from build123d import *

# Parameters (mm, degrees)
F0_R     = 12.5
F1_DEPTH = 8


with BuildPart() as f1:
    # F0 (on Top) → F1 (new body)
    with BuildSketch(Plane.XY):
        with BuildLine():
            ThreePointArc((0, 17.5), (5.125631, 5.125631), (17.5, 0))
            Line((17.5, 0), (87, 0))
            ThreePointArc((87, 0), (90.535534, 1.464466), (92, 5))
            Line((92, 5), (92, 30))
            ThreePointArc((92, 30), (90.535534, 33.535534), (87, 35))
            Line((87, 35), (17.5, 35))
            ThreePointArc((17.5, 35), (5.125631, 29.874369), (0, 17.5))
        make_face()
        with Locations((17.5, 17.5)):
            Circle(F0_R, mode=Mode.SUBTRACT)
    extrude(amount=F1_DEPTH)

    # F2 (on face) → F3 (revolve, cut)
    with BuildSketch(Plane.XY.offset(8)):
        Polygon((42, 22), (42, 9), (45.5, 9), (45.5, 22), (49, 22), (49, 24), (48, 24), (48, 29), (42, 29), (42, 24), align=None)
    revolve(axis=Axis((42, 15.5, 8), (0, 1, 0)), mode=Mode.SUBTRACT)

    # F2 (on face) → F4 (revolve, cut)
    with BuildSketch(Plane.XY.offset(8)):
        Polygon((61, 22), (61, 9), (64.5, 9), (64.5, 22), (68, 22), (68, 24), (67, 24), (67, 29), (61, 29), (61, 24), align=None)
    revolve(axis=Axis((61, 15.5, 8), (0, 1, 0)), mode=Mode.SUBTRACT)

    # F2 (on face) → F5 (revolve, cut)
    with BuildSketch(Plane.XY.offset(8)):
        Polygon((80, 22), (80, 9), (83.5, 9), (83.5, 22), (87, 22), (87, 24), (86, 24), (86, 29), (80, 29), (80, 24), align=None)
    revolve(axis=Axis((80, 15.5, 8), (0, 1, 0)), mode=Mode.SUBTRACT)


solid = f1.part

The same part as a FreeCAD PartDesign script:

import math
import FreeCAD as App
import Part
import Sketcher


def add_polygon(sketch, points):
    """Adds a closed chain of lines whose ends are joined by coincident constraints."""
    first, n = sketch.GeometryCount, len(points)
    for a, b in zip(points, points[1:] + points[:1]):
        sketch.addGeometry(Part.LineSegment(App.Vector(*a, 0), App.Vector(*b, 0)), False)
    for i in range(n):
        sketch.addConstraint(Sketcher.Constraint("Coincident", first + i, 2, first + (i + 1) % n, 1))

doc = App.newDocument("Part")
body = doc.addObject("PartDesign::Body", "Body")

# Sketch on XY plane
sketch1 = body.newObject("Sketcher::SketchObject", "Sketch")
sketch1.AttachmentSupport = (doc.getObject("XY_Plane"), [""])
sketch1.MapMode = "FlatFace"
sketch1.addGeometry([
    Part.ArcOfCircle(Part.Circle(App.Vector(17.5, 17.5, 0), App.Vector(0, 0, 1), 17.5), math.radians(180), math.radians(270)),  # 0
    Part.LineSegment(App.Vector(17.5, 0, 0), App.Vector(87, 0, 0)),  # 1
    Part.ArcOfCircle(Part.Circle(App.Vector(87, 5, 0), App.Vector(0, 0, 1), 5), math.radians(-90), math.radians(0)),  # 2
    Part.LineSegment(App.Vector(92, 5, 0), App.Vector(92, 30, 0)),  # 3
    Part.ArcOfCircle(Part.Circle(App.Vector(87, 30, 0), App.Vector(0, 0, 1), 5), math.radians(0), math.radians(90)),  # 4
    Part.LineSegment(App.Vector(87, 35, 0), App.Vector(17.5, 35, 0)),  # 5
    Part.ArcOfCircle(Part.Circle(App.Vector(17.5, 17.5, 0), App.Vector(0, 0, 1), 17.5), math.radians(90), math.radians(180)),  # 6
    Part.Circle(App.Vector(17.5, 17.5, 0), App.Vector(0, 0, 1), 12.5),  # 7
], False)
sketch1.addConstraint([
    Sketcher.Constraint("Tangent", 0, 2, 1, 1),
    Sketcher.Constraint("Tangent", 1, 2, 2, 1),
    Sketcher.Constraint("Tangent", 2, 2, 3, 1),
    Sketcher.Constraint("Tangent", 3, 2, 4, 1),
    Sketcher.Constraint("Tangent", 4, 2, 5, 1),
    Sketcher.Constraint("Tangent", 5, 2, 6, 1),
    Sketcher.Constraint("Tangent", 6, 2, 0, 1),
    Sketcher.Constraint("Horizontal", 1),
    Sketcher.Constraint("Vertical", 3),
    Sketcher.Constraint("Horizontal", 5),
    Sketcher.Constraint("Coincident", 7, 3, 0, 3),
    Sketcher.Constraint("Equal", 2, 4),
    Sketcher.Constraint("Equal", 0, 6),
    Sketcher.Constraint("PointOnObject", 0, 2, -1),
    Sketcher.Constraint("PointOnObject", 6, 2, -2),
    Sketcher.Constraint("Horizontal", 7, 3, 6, 2),
    Sketcher.Constraint("Diameter", 7, 25.0),
    Sketcher.Constraint("Radius", 2, 5.0),
    Sketcher.Constraint("Radius", 0, 17.499999),
    Sketcher.Constraint("DistanceX", 1, 1, 1, 2, 69.5),
])
pad1 = body.newObject("PartDesign::Pad", "Pad")
pad1.Profile = sketch1
pad1.Length = 8

# Sketch on XY plane
sketch2 = body.newObject("Sketcher::SketchObject", "Sketch001")
sketch2.AttachmentSupport = (doc.getObject("XY_Plane"), [""])
sketch2.MapMode = "FlatFace"
sketch2.AttachmentOffset = App.Placement(App.Vector(0, 0, 8), App.Rotation())
add_polygon(sketch2, [(42, 9), (45.5, 9), (45.5, 22), (49, 22), (49, 24), (48, 24), (48, 29), (42, 29)])  # lines 0-7
sketch2.addGeometry(Part.LineSegment(App.Vector(42, 9, 0), App.Vector(42, 29, 0)), True)  # axis
sketch2.addConstraint([
    Sketcher.Constraint("Horizontal", 0),
    Sketcher.Constraint("Vertical", 1),
    Sketcher.Constraint("Horizontal", 2),
    Sketcher.Constraint("Vertical", 3),
    Sketcher.Constraint("Horizontal", 4),
    Sketcher.Constraint("Vertical", 5),
    Sketcher.Constraint("Horizontal", 6),
    Sketcher.Constraint("Vertical", 7),
    Sketcher.Constraint("Vertical", 8),
    Sketcher.Constraint("Coincident", 8, 1, 7, 2),
    Sketcher.Constraint("Horizontal", 5, 2, 8, 2),
    Sketcher.Constraint("Equal", 0, 2),
    Sketcher.Constraint("DistanceX", 4, 2, 4, 1, 1.0),
    Sketcher.Constraint("DistanceX", 6, 2, 6, 1, 6.0),
    Sketcher.Constraint("DistanceY", 1, 1, 1, 2, 13.0),
    Sketcher.Constraint("DistanceY", 3, 1, 3, 2, 2.0),
    Sketcher.Constraint("DistanceY", 5, 1, 5, 2, 5.0),
    Sketcher.Constraint("DistanceY", -1, 1, 0, 2, 9.0),
    Sketcher.Constraint("DistanceX", -1, 1, 2, 2, 49.0),
])
groove = body.newObject("PartDesign::Groove", "Groove")
groove.Profile = sketch2
groove.ReferenceAxis = (sketch2, ["Axis0"])
groove.Angle = 360

# Sketch on XY plane
sketch3 = body.newObject("Sketcher::SketchObject", "Sketch002")
sketch3.AttachmentSupport = (doc.getObject("XY_Plane"), [""])
sketch3.MapMode = "FlatFace"
sketch3.AttachmentOffset = App.Placement(App.Vector(0, 0, 8), App.Rotation())
add_polygon(sketch3, [(61, 9), (64.5, 9), (64.5, 22), (68, 22), (68, 24), (67, 24), (67, 29), (61, 29)])  # lines 0-7
sketch3.addGeometry(Part.LineSegment(App.Vector(61, 9, 0), App.Vector(61, 29, 0)), True)  # axis
sketch3.addConstraint([
    Sketcher.Constraint("Horizontal", 0),
    Sketcher.Constraint("Vertical", 1),
    Sketcher.Constraint("Horizontal", 2),
    Sketcher.Constraint("Vertical", 3),
    Sketcher.Constraint("Horizontal", 4),
    Sketcher.Constraint("Vertical", 5),
    Sketcher.Constraint("Horizontal", 6),
    Sketcher.Constraint("Vertical", 7),
    Sketcher.Constraint("Vertical", 8),
    Sketcher.Constraint("Coincident", 8, 1, 7, 2),
    Sketcher.Constraint("Horizontal", 5, 2, 8, 2),
    Sketcher.Constraint("Equal", 0, 2),
    Sketcher.Constraint("DistanceX", 4, 2, 4, 1, 1.0),
    Sketcher.Constraint("DistanceX", 6, 2, 6, 1, 6.0),
    Sketcher.Constraint("DistanceY", 1, 1, 1, 2, 13.0),
    Sketcher.Constraint("DistanceY", 3, 1, 3, 2, 2.0),
    Sketcher.Constraint("DistanceY", 5, 1, 5, 2, 5.0),
    Sketcher.Constraint("DistanceY", -1, 1, 0, 2, 9.0),
    Sketcher.Constraint("DistanceX", -1, 1, 2, 2, 68.0),
])
groove2 = body.newObject("PartDesign::Groove", "Groove001")
groove2.Profile = sketch3
groove2.ReferenceAxis = (sketch3, ["Axis0"])
groove2.Angle = 360

# Sketch on XY plane
sketch4 = body.newObject("Sketcher::SketchObject", "Sketch003")
sketch4.AttachmentSupport = (doc.getObject("XY_Plane"), [""])
sketch4.MapMode = "FlatFace"
sketch4.AttachmentOffset = App.Placement(App.Vector(0, 0, 8), App.Rotation())
add_polygon(sketch4, [(80, 9), (83.5, 9), (83.5, 22), (87, 22), (87, 24), (86, 24), (86, 29), (80, 29)])  # lines 0-7
sketch4.addGeometry(Part.LineSegment(App.Vector(80, 9, 0), App.Vector(80, 29, 0)), True)  # axis
sketch4.addConstraint([
    Sketcher.Constraint("Horizontal", 0),
    Sketcher.Constraint("Vertical", 1),
    Sketcher.Constraint("Horizontal", 2),
    Sketcher.Constraint("Vertical", 3),
    Sketcher.Constraint("Horizontal", 4),
    Sketcher.Constraint("Vertical", 5),
    Sketcher.Constraint("Horizontal", 6),
    Sketcher.Constraint("Vertical", 7),
    Sketcher.Constraint("Vertical", 8),
    Sketcher.Constraint("Coincident", 8, 1, 7, 2),
    Sketcher.Constraint("Horizontal", 5, 2, 8, 2),
    Sketcher.Constraint("Equal", 0, 2),
    Sketcher.Constraint("DistanceX", 4, 2, 4, 1, 1.0),
    Sketcher.Constraint("DistanceX", 6, 2, 6, 1, 6.0),
    Sketcher.Constraint("DistanceY", 1, 1, 1, 2, 13.0),
    Sketcher.Constraint("DistanceY", 3, 1, 3, 2, 2.0),
    Sketcher.Constraint("DistanceY", 5, 1, 5, 2, 5.0),
    Sketcher.Constraint("DistanceY", -1, 1, 0, 2, 9.0),
    Sketcher.Constraint("DistanceX", -1, 1, 2, 2, 87.0),
])
groove3 = body.newObject("PartDesign::Groove", "Groove002")
groove3.Profile = sketch4
groove3.ReferenceAxis = (sketch4, ["Axis0"])
groove3.Angle = 360

doc.recompute()
